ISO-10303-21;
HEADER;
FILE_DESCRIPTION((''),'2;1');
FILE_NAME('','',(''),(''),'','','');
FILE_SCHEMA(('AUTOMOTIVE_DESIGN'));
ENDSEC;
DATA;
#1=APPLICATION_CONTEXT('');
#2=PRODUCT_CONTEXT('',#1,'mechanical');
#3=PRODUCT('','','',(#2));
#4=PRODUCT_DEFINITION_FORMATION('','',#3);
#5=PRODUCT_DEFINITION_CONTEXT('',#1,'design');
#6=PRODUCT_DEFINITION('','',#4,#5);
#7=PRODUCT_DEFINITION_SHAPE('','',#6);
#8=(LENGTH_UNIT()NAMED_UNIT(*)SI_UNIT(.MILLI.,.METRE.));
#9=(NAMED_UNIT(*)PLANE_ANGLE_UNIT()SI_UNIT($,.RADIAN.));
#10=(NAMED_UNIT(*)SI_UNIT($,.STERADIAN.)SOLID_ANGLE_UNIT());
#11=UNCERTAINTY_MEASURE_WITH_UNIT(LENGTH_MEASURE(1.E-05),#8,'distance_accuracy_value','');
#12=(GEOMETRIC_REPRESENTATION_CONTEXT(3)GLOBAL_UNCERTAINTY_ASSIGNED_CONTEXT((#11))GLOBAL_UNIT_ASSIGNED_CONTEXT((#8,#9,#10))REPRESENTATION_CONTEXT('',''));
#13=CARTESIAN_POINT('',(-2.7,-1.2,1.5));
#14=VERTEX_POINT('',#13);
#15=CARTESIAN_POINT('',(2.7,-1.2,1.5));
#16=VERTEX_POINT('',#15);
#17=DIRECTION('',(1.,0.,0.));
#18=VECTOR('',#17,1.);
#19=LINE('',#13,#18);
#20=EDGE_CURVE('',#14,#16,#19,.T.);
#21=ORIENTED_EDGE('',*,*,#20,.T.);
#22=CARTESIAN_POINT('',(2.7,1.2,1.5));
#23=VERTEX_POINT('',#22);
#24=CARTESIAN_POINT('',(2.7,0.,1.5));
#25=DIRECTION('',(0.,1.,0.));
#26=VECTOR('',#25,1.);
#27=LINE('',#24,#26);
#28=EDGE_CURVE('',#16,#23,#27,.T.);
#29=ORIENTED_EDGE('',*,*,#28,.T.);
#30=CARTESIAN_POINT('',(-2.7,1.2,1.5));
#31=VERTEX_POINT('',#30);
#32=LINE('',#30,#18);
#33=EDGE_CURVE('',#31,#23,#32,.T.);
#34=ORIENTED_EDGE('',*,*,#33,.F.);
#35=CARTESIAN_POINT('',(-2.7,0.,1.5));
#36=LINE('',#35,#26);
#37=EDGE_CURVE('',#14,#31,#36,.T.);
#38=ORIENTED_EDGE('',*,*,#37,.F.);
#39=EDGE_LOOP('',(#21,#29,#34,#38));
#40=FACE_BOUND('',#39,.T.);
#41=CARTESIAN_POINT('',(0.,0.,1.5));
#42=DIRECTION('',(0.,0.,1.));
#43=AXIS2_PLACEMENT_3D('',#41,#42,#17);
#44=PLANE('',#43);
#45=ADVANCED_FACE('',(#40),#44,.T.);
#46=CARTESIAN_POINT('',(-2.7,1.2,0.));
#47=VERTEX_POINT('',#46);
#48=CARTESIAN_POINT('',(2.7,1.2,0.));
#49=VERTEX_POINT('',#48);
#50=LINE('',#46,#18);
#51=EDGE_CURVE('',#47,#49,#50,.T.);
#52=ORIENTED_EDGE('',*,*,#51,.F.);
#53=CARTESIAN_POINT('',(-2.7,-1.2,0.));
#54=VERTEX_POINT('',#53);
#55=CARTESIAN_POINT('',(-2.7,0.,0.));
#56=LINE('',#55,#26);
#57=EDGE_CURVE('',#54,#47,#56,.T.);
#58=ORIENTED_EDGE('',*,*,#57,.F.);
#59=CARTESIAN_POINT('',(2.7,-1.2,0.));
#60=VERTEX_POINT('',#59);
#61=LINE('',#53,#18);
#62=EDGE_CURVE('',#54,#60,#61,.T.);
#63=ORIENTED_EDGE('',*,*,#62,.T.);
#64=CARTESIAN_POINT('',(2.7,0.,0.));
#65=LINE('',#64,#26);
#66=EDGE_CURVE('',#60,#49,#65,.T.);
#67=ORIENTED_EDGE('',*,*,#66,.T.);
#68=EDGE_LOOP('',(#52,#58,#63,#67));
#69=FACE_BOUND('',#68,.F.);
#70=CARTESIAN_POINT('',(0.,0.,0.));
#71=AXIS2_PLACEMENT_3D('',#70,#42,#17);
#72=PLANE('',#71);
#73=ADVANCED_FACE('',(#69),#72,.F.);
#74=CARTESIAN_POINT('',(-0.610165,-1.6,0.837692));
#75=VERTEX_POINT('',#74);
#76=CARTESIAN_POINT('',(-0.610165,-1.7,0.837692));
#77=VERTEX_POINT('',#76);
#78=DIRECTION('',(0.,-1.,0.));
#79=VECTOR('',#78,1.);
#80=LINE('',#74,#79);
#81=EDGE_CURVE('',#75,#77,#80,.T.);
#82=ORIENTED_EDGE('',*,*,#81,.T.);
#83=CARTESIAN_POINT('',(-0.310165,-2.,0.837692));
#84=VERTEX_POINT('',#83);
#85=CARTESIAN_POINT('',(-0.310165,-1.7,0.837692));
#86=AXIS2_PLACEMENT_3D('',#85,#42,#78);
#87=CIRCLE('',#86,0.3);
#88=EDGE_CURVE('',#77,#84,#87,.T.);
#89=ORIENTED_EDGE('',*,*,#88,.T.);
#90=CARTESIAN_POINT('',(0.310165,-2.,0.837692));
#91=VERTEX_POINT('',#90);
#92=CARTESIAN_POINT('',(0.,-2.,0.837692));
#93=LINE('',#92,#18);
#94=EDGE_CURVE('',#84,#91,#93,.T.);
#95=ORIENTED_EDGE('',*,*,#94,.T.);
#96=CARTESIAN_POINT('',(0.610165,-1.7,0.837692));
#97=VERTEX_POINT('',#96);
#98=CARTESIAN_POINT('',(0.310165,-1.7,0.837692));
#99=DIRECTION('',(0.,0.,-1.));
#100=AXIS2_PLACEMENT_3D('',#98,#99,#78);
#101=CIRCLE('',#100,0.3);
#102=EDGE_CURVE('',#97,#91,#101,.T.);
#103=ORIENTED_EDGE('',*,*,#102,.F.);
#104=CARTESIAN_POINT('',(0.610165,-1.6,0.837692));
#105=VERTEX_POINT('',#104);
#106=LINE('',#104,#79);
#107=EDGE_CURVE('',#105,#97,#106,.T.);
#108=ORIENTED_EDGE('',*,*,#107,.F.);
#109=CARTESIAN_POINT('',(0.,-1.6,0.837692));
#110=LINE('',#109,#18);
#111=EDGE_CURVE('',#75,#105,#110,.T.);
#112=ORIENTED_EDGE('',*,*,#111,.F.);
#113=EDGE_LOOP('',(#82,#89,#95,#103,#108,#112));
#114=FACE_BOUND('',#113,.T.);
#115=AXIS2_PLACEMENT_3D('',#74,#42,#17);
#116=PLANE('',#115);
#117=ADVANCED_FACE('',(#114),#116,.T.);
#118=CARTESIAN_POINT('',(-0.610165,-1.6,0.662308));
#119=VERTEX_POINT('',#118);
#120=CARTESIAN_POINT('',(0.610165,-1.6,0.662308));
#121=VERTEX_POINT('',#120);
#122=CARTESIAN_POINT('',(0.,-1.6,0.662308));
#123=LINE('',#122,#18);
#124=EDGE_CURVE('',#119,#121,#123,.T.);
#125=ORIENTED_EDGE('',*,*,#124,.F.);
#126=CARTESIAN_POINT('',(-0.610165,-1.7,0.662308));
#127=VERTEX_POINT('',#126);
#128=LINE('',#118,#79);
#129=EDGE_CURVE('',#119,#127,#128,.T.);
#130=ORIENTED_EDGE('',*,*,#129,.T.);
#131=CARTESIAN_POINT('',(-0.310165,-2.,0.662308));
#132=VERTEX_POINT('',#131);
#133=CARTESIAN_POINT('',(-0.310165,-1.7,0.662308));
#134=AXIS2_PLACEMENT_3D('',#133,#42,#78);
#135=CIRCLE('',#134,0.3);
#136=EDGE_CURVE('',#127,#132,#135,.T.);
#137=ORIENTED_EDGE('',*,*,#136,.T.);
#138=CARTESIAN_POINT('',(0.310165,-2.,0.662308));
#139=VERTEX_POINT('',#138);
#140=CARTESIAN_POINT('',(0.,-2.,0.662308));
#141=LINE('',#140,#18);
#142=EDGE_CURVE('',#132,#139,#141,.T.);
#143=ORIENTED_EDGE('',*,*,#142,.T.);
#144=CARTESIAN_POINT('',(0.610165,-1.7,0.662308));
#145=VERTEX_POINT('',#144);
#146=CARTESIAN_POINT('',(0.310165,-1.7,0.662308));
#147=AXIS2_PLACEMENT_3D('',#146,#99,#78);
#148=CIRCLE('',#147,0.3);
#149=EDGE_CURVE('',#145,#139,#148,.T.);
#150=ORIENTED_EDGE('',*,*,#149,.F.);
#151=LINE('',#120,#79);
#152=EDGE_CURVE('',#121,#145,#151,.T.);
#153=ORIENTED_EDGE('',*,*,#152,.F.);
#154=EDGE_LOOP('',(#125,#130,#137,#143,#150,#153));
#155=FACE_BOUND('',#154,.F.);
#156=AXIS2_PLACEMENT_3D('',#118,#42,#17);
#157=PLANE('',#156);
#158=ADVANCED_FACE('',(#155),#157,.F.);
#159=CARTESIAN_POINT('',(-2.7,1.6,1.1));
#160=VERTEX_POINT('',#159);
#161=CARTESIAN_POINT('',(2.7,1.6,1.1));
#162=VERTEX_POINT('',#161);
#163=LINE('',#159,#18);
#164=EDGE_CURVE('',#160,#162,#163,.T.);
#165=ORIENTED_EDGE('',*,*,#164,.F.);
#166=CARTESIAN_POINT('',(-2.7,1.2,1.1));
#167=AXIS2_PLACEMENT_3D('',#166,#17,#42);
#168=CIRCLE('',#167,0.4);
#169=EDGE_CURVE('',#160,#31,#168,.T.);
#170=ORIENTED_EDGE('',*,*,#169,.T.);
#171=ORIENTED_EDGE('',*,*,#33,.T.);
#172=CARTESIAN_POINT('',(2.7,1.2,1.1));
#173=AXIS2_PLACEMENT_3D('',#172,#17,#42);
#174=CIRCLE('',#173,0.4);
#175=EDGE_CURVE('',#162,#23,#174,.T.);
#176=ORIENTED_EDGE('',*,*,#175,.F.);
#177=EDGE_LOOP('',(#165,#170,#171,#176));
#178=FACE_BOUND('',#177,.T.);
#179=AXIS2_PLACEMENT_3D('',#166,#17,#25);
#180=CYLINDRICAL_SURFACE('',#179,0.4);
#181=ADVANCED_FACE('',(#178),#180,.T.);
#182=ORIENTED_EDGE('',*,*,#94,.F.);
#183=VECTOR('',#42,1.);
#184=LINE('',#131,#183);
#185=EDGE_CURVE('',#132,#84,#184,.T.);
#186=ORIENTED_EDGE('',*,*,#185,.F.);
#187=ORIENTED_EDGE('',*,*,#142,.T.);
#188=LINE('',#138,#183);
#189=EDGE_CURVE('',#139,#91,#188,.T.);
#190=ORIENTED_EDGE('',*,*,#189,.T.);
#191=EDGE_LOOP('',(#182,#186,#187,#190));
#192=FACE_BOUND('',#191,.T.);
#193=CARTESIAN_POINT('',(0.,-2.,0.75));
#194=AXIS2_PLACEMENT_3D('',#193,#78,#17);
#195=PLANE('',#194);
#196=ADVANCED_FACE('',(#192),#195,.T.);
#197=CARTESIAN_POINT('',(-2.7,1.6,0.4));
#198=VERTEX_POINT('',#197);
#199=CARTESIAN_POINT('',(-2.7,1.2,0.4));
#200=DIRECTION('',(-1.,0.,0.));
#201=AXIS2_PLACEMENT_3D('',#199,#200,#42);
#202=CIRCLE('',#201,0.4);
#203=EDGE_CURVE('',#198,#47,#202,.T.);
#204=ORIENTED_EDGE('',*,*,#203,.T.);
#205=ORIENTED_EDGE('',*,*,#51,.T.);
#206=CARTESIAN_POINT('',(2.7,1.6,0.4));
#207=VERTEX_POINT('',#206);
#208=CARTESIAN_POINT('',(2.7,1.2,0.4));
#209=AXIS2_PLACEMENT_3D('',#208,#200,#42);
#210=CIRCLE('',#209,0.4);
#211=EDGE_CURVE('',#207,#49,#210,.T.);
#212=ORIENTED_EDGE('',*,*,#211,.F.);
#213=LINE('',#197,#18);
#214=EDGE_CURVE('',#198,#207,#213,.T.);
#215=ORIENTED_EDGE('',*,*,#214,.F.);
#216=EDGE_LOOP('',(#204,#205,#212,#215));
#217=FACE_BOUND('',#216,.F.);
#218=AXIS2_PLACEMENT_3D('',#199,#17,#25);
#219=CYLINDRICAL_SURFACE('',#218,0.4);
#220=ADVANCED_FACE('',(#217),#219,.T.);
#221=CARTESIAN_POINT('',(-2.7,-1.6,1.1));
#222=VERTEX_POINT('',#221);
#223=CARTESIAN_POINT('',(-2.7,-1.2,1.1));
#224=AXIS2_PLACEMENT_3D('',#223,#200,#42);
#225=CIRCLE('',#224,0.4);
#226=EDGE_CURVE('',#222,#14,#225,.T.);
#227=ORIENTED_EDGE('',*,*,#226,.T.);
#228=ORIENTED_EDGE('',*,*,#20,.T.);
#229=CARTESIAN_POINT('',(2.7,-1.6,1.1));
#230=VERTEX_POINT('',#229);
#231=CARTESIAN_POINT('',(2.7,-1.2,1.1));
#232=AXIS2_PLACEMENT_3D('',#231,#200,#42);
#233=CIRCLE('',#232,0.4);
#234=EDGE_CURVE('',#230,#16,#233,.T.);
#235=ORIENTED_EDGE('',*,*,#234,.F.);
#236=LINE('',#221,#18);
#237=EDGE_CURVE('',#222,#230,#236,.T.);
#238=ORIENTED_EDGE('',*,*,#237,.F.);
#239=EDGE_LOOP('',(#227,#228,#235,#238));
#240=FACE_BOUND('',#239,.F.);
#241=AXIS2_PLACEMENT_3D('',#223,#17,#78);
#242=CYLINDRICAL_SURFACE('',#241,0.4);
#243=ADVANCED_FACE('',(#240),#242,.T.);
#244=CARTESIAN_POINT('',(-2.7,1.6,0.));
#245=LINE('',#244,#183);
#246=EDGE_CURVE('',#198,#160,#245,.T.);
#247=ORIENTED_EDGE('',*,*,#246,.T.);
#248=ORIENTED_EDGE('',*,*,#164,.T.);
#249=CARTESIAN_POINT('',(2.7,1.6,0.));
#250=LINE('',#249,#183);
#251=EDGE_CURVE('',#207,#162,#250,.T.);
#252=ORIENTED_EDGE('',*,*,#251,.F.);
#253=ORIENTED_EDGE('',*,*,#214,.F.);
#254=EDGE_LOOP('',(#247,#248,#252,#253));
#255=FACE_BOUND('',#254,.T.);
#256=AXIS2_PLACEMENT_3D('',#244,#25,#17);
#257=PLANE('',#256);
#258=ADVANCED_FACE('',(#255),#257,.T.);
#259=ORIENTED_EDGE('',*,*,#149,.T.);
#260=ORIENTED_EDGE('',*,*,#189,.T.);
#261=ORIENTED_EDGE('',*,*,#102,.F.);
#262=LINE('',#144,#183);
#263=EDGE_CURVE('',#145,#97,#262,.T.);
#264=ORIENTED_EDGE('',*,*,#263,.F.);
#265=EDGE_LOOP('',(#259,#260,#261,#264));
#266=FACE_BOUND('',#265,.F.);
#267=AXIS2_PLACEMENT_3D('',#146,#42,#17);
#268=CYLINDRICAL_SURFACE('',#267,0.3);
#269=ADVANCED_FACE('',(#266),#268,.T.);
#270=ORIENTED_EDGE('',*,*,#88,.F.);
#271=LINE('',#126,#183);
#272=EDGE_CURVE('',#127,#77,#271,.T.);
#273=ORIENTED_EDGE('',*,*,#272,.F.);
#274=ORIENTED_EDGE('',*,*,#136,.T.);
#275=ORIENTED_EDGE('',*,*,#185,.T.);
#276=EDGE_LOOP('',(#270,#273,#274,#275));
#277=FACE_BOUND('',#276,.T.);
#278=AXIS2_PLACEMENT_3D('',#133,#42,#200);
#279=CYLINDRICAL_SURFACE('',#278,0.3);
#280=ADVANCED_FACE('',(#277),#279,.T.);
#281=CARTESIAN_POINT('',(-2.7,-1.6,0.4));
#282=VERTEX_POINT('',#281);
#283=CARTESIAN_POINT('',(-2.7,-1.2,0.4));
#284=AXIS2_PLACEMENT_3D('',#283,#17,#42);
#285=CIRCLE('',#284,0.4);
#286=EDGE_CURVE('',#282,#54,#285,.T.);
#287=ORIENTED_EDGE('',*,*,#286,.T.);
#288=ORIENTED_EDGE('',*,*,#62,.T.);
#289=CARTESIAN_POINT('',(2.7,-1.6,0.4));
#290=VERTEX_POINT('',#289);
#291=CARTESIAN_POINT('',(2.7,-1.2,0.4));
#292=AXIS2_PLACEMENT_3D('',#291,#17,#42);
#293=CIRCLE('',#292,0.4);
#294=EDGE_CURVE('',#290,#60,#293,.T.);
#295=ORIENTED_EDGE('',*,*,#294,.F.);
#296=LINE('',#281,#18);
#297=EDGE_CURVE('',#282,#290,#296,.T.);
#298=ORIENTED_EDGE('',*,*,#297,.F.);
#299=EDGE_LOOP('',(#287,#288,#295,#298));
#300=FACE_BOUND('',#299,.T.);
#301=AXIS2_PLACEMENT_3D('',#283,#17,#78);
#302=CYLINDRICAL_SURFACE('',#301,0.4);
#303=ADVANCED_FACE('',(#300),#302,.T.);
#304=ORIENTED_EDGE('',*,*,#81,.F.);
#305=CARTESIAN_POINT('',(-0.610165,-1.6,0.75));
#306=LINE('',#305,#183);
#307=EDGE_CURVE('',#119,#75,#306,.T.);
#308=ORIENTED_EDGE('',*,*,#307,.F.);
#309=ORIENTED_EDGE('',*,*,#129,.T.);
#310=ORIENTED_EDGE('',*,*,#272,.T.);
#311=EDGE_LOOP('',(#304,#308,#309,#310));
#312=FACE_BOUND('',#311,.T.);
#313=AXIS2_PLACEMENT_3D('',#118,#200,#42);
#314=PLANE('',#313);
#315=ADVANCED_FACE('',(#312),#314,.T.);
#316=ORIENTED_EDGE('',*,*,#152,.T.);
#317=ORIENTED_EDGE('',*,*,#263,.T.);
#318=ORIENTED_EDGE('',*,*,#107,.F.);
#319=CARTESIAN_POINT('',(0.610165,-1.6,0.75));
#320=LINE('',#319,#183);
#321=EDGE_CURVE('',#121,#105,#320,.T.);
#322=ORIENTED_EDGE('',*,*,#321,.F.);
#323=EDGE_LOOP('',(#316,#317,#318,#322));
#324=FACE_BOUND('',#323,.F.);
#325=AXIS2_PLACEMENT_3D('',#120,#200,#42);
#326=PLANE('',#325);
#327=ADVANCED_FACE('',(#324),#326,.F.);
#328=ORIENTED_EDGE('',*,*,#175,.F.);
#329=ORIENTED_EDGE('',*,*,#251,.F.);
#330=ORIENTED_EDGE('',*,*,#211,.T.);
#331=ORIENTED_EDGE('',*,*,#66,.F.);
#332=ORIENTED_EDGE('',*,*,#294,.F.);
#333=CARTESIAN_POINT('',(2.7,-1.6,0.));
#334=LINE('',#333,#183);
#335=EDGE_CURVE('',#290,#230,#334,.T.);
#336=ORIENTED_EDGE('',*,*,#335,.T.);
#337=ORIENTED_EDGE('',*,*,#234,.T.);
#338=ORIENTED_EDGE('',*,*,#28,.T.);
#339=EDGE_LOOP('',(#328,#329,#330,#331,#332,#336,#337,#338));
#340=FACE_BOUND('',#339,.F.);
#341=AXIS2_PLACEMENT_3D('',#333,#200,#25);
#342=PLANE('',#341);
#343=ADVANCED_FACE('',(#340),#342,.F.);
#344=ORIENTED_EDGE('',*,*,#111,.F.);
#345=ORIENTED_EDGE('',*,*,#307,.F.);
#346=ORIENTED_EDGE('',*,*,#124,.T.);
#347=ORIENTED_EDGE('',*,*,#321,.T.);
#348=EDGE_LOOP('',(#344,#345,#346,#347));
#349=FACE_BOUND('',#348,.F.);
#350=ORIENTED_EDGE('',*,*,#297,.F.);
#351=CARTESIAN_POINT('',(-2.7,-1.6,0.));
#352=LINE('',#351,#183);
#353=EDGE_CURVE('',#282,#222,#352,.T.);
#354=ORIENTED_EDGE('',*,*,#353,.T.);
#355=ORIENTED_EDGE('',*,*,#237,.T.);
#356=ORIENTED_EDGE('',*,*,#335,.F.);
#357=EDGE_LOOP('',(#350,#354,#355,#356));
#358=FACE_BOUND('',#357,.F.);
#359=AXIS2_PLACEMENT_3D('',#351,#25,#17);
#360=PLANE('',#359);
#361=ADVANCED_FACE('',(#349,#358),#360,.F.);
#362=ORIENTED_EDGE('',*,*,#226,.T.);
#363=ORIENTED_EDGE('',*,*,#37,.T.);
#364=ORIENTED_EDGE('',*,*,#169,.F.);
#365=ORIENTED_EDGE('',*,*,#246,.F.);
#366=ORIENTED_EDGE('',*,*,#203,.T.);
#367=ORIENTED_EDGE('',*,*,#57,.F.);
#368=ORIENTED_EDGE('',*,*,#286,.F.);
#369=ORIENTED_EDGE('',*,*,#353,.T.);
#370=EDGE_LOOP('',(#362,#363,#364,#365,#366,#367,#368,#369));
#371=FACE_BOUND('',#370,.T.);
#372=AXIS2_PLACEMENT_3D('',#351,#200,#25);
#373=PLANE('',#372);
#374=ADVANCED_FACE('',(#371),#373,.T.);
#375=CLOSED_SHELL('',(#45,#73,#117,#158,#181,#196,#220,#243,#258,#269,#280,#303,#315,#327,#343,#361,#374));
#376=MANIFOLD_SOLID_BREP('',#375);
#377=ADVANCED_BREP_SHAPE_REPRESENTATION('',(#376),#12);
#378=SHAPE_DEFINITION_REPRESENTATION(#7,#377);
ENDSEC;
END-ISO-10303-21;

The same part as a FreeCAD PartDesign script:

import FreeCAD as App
import Part
import Sketcher

V = App.Vector


def edges_at(feature, points):
    """Names of the edges that pass closest to the given points."""
    edges = feature.Shape.Edges
    near = lambda p: min(range(len(edges)), key=lambda i: edges[i].distToShape(Part.Vertex(*p))[0])
    return sorted({f"Edge{near(p) + 1}" for p in points})

doc = App.newDocument("Part")
params = doc.addObject("Spreadsheet::Sheet", "Params")
for row, (alias, value) in enumerate([
    ("sketch1_width", "5.4 mm"),
    ("sketch1_height", "3.2 mm"),
    ("pad1_length", "1.5 mm"),
    ("fillet_radius", "0.4 mm"),
    ("pad2_length", "0.4 mm"),
    ("fillet2_radius", "0.3 mm"),
], start=1):
    params.set(f"A{row}", alias)
    params.set(f"B{row}", "=" + value)
    params.setAlias(f"B{row}", alias)

body = doc.addObject("PartDesign::Body", "Body")

sketch1 = doc.addObject("Sketcher::SketchObject", "Sketch")
body.addObject(sketch1)
sketch1.AttachmentSupport = (doc.XY_Plane, [""])
sketch1.MapMode = "FlatFace"
sketch1.addGeometry([
    Part.LineSegment(V(-2.7, 1.6, 0), V(-2.7, -1.6, 0)),
    Part.LineSegment(V(-2.7, -1.6, 0), V(2.7, -1.6, 0)),
    Part.LineSegment(V(2.7, -1.6, 0), V(2.7, 1.6, 0)),
    Part.LineSegment(V(2.7, 1.6, 0), V(-2.7, 1.6, 0)),
], False)
sketch1.addConstraint([
    Sketcher.Constraint("Coincident", 0, 2, 1, 1),
    Sketcher.Constraint("Coincident", 1, 2, 2, 1),
    Sketcher.Constraint("Coincident", 2, 2, 3, 1),
    Sketcher.Constraint("Coincident", 3, 2, 0, 1),
    Sketcher.Constraint("Vertical", 0),
    Sketcher.Constraint("Horizontal", 1),
    Sketcher.Constraint("Vertical", 2),
    Sketcher.Constraint("Horizontal", 3),
    Sketcher.Constraint("Symmetric", 0, 2, 2, 2, -1, 1),
    Sketcher.Constraint("DistanceX", 1, 1, 1, 2, 5.4),
    Sketcher.Constraint("DistanceY", 0, 2, 0, 1, 3.2),
])
sketch1.setExpression("Constraints[9]", "Params.sketch1_width")
sketch1.setExpression("Constraints[10]", "Params.sketch1_height")
pad1 = doc.addObject("PartDesign::Pad", "Pad")
body.addObject(pad1)
pad1.Profile = sketch1
pad1.setExpression("Length", "Params.pad1_length")
doc.recompute()

fillet = doc.addObject("PartDesign::Fillet", "Fillet")
body.addObject(fillet)
fillet.Base = (pad1, edges_at(pad1, [
    (0, -1.6, 1.5),
    (0, -1.6, 0),
    (0, 1.6, 1.5),
    (0, 1.6, 0),
]))
fillet.setExpression("Radius", "Params.fillet_radius")

sketch2 = doc.addObject("Sketcher::SketchObject", "Sketch001")
body.addObject(sketch2)
sketch2.AttachmentSupport = (doc.XZ_Plane, [""])
sketch2.MapMode = "FlatFace"
sketch2.AttachmentOffset = App.Placement(V(0, 0, 1.6), App.Rotation())
sketch2.addGeometry([
    Part.LineSegment(V(-0.61, 0.84, 0), V(-0.61, 0.66, 0)),
    Part.LineSegment(V(-0.61, 0.66, 0), V(0.61, 0.66, 0)),
    Part.LineSegment(V(0.61, 0.66, 0), V(0.61, 0.84, 0)),
    Part.LineSegment(V(0.61, 0.84, 0), V(-0.61, 0.84, 0)),
], False)
sketch2.addConstraint([
    Sketcher.Constraint("Coincident", 0, 2, 1, 1),
    Sketcher.Constraint("Coincident", 1, 2, 2, 1),
    Sketcher.Constraint("Coincident", 2, 2, 3, 1),
    Sketcher.Constraint("Coincident", 3, 2, 0, 1),
    Sketcher.Constraint("Vertical", 0),
    Sketcher.Constraint("Horizontal", 1),
    Sketcher.Constraint("Vertical", 2),
    Sketcher.Constraint("Horizontal", 3),
    Sketcher.Constraint("DistanceX", 1, 1, 1, 2, 1.22033),
    Sketcher.Constraint("DistanceY", 0, 2, 0, 1, 0.175384),
    Sketcher.Constraint("DistanceY", -1, 1, 0, 2, 0.662308),
    Sketcher.Constraint("DistanceX", 0, 2, -1, 1, 0.610165),
])
pad2 = doc.addObject("PartDesign::Pad", "Pad001")
body.addObject(pad2)
pad2.Profile = sketch2
pad2.setExpression("Length", "Params.pad2_length")
doc.recompute()

fillet2 = doc.addObject("PartDesign::Fillet", "Fillet001")
body.addObject(fillet2)
fillet2.Base = (pad2, edges_at(pad2, [(-0.61, -2, 0.75), (0.61, -2, 0.75)]))
fillet2.setExpression("Radius", "Params.fillet2_radius")

doc.recompute()
